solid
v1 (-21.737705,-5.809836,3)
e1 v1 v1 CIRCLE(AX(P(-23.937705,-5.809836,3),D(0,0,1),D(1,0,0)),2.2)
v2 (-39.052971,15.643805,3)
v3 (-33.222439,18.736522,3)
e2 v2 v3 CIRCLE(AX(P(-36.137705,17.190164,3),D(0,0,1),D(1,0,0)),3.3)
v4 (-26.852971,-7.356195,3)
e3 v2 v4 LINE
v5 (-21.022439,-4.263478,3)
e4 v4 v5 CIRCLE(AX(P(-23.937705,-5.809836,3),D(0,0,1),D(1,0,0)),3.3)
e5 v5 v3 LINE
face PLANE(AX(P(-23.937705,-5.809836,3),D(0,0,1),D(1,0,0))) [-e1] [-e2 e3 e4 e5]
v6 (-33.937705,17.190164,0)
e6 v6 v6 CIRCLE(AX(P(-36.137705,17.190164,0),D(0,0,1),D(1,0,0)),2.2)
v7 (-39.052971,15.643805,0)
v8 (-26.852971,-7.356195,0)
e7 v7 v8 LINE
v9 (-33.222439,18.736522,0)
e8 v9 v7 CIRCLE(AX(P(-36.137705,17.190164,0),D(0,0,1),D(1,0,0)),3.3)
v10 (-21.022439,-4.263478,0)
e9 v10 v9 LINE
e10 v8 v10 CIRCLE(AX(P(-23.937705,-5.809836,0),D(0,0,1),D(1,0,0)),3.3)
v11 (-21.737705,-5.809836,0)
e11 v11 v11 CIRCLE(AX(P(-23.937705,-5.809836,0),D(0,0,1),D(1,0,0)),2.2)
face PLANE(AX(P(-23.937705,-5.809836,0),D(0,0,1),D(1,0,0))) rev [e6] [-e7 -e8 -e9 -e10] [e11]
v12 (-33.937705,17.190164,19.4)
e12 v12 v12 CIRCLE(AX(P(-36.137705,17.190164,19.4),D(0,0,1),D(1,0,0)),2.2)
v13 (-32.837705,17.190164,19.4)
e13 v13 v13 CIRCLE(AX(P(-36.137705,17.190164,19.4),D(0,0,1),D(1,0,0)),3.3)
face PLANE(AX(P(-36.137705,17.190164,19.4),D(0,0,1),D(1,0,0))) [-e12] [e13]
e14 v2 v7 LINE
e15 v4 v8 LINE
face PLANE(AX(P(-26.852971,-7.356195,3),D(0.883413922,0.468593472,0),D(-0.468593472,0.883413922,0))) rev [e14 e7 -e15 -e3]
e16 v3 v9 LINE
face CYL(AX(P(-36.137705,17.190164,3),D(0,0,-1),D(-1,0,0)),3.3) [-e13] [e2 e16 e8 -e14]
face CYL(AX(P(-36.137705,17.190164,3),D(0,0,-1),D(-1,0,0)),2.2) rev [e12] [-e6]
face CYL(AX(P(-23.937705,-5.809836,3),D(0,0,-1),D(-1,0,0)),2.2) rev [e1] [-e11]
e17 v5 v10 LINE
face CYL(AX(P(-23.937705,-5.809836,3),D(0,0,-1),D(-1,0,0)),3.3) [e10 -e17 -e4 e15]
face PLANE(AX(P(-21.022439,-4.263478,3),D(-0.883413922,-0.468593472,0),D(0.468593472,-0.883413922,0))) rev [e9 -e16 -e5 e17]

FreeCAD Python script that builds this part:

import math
import FreeCAD as App
import Part
import Sketcher
from FreeCAD import Vector
Q = App.Units.Quantity

doc = App.newDocument("Part")
body = doc.addObject("PartDesign::Body", "Body")

sketch1 = body.newObject("Sketcher::SketchObject", "Sketch")
sketch1.AttachmentSupport = (doc.getObject("XY_Plane"), [""])
sketch1.MapMode = "FlatFace"
sketch1.addGeometry([
    Part.LineSegment(Vector(-39.1, 15.6, 0), Vector(-26.9, -7.4, 0)),
    Part.ArcOfCircle(Part.Circle(Vector(-23.9, -5.8, 0), Vector(0, 0, 1), 3.3), math.radians(-152), math.radians(28)),
    Part.LineSegment(Vector(-21, -4.3, 0), Vector(-33.2, 18.7, 0)),
    Part.ArcOfCircle(Part.Circle(Vector(-36.1, 17.2, 0), Vector(0, 0, 1), 3.3), math.radians(28), math.radians(208)),
    Part.Circle(Vector(-36.1, 17.2, 0), Vector(0, 0, 1), 2.2),
    Part.Circle(Vector(-23.9, -5.8, 0), Vector(0, 0, 1), 2.2),
], False)
sketch1.addConstraint([
    Sketcher.Constraint("Tangent", 0, 2, 1, 1),
    Sketcher.Constraint("Tangent", 1, 2, 2, 1),
    Sketcher.Constraint("Tangent", 2, 2, 3, 1),
    Sketcher.Constraint("Tangent", 3, 2, 0, 1),
    Sketcher.Constraint("Coincident", 4, 3, 3, 3),
    Sketcher.Constraint("Coincident", 5, 3, 1, 3),
    Sketcher.Constraint("Equal", 1, 3),
    Sketcher.Constraint("Equal", 4, 5),
    Sketcher.Constraint("Diameter", 4, Q("4.4 mm")),
    Sketcher.Constraint("Radius", 1, Q("3.3 mm")),
    Sketcher.Constraint("DistanceY", 1, 3, 3, 3, Q("23 mm")),
    Sketcher.Constraint("DistanceX", 3, 3, 1, 3, Q("12.2 mm")),
    Sketcher.Constraint("DistanceX", 0, 2, -1, 1, Q("26.852971 mm")),
    Sketcher.Constraint("DistanceY", 1, 3, -1, 1, Q("5.809836 mm")),
])
pad1 = body.newObject("PartDesign::Pad", "Pad")
pad1.Profile = sketch1
pad1.Length = 3

sketch2 = body.newObject("Sketcher::SketchObject", "Sketch001")
sketch2.AttachmentSupport = (doc.getObject("XY_Plane"), [""])
sketch2.MapMode = "FlatFace"
sketch2.AttachmentOffset = App.Placement(Vector(0, 0, 3), App.Rotation())
sketch2.addGeometry([
    Part.Circle(Vector(-36.1, 17.2, 0), Vector(0, 0, 1), 3.3),
    Part.Circle(Vector(-36.1, 17.2, 0), Vector(0, 0, 1), 2.2),
], False)
sketch2.addConstraint([
    Sketcher.Constraint("Coincident", 1, 3, 0, 3),
    Sketcher.Constraint("Diameter", 0, Q("6.6 mm")),
    Sketcher.Constraint("Diameter", 1, Q("4.4 mm")),
    Sketcher.Constraint("DistanceX", 0, 3, -1, 1, Q("36.137705 mm")),
    Sketcher.Constraint("DistanceY", -1, 1, 0, 3, Q("17.190164 mm")),
])
pad2 = body.newObject("PartDesign::Pad", "Pad001")
pad2.Profile = sketch2
pad2.Length = 16.4

doc.recompute()
